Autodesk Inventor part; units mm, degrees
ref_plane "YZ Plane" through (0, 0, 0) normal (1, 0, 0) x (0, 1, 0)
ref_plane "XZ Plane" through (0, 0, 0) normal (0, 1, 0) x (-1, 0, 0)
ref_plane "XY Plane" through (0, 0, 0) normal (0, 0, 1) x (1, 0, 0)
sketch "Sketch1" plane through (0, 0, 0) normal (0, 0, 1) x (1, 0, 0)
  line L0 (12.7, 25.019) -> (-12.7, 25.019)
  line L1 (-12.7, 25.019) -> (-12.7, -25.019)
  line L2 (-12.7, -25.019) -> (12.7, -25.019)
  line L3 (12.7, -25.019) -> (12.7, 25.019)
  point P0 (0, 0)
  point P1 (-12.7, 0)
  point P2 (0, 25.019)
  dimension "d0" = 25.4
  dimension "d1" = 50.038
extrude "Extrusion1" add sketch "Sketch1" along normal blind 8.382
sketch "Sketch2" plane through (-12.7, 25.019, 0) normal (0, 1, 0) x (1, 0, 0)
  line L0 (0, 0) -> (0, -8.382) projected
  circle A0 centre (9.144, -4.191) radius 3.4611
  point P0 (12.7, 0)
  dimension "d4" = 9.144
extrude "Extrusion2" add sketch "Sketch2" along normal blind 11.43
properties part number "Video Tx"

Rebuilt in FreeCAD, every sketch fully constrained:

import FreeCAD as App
import Part
import Sketcher

V = App.Vector
Q = App.Units.Quantity


def add_polygon(sketch, points):
    """Adds a closed chain of lines whose ends are joined by coincident constraints."""
    first, n = sketch.GeometryCount, len(points)
    for a, b in zip(points, points[1:] + points[:1]):
        sketch.addGeometry(Part.LineSegment(App.Vector(*a, 0), App.Vector(*b, 0)), False)
    for i in range(n):
        sketch.addConstraint(Sketcher.Constraint("Coincident", first + i, 2, first + (i + 1) % n, 1))

doc = App.newDocument("Part")
body = doc.addObject("PartDesign::Body", "Body")

# Sketch on XY plane
sketch1 = body.newObject("Sketcher::SketchObject", "Sketch")
sketch1.AttachmentSupport = (doc.getObject("XY_Plane"), [""])
sketch1.MapMode = "FlatFace"
add_polygon(sketch1, [(12.7, -25.019), (12.7, 25.019), (-12.7, 25.019), (-12.7, -25.019)])  # lines 0-3
sketch1.addConstraint(Sketcher.Constraint("Vertical", 0))
sketch1.addConstraint(Sketcher.Constraint("Horizontal", 1))
sketch1.addConstraint(Sketcher.Constraint("Vertical", 2))
sketch1.addConstraint(Sketcher.Constraint("Horizontal", 3))
sketch1.addConstraint(Sketcher.Constraint("Symmetric", 0, 2, 2, 2, -1, 1))
sketch1.addConstraint(Sketcher.Constraint("DistanceX", 1, 2, 1, 1, Q("1 in")))
sketch1.addConstraint(Sketcher.Constraint("DistanceY", 0, 1, 0, 2, Q("1.97 in")))
pad1 = body.newObject("PartDesign::Pad", "Pad")
pad1.Profile = sketch1
pad1.Length = Q("0.33 in")

# Sketch on XZ plane
sketch2 = body.newObject("Sketcher::SketchObject", "Sketch001")
sketch2.AttachmentSupport = (doc.getObject("XZ_Plane"), [""])
sketch2.MapMode = "FlatFace"
sketch2.AttachmentOffset = App.Placement(V(0, 0, -0.985 * 25.4), App.Rotation())
sketch2.addGeometry(Part.Circle(V(-3.556, 4.191, 0), V(0, 0, 1), 3.4611), False)
sketch2.addConstraint(Sketcher.Constraint("Diameter", 0, Q("6.9222 mm")))
sketch2.addConstraint(Sketcher.Constraint("DistanceX", 0, 3, -1, 1, Q("0.14 in")))
sketch2.addConstraint(Sketcher.Constraint("DistanceY", -1, 1, 0, 3, Q("0.165 in")))
pad2 = body.newObject("PartDesign::Pad", "Pad001")
pad2.Profile = sketch2
pad2.Length = Q("0.45 in")
pad2.Reversed = True

doc.recompute()
